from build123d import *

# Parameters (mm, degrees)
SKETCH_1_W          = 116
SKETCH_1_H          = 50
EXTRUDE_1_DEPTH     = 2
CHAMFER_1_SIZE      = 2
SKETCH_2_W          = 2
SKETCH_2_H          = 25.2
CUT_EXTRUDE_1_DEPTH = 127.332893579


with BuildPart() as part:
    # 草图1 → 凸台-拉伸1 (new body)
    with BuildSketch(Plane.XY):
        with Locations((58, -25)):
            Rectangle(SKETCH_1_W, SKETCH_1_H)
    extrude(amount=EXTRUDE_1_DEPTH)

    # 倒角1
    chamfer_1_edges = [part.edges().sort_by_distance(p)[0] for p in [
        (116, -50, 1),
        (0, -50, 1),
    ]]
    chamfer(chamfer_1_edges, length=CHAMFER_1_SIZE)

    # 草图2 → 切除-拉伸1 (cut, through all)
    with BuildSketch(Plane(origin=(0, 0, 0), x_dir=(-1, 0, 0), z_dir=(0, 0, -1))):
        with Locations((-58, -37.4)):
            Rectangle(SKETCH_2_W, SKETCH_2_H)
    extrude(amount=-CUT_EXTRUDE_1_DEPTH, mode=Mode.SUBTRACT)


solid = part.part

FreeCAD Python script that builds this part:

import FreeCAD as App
import Part
import Sketcher

V = App.Vector
Q = App.Units.Quantity


def edges_at(feature, points):
    """Names of the edges that pass closest to the given points."""
    edges = feature.Shape.Edges
    near = lambda p: min(range(len(edges)), key=lambda i: edges[i].distToShape(Part.Vertex(*p))[0])
    return sorted({f"Edge{near(p) + 1}" for p in points})

doc = App.newDocument("Part")
body = doc.addObject("PartDesign::Body", "Body")

sketch1 = body.newObject("Sketcher::SketchObject", "Sketch")
sketch1.AttachmentSupport = (doc.getObject("XY_Plane"), [""])
sketch1.MapMode = "FlatFace"
sketch1.addGeometry([
    Part.LineSegment(V(0, 0, 0), V(0, -50, 0)),
    Part.LineSegment(V(0, -50, 0), V(116, -50, 0)),
    Part.LineSegment(V(116, -50, 0), V(116, 0, 0)),
    Part.LineSegment(V(116, 0, 0), V(0, 0, 0)),
], False)
sketch1.addConstraint([
    Sketcher.Constraint("Coincident", 0, 2, 1, 1),
    Sketcher.Constraint("Coincident", 1, 2, 2, 1),
    Sketcher.Constraint("Coincident", 2, 2, 3, 1),
    Sketcher.Constraint("Coincident", 3, 2, 0, 1),
    Sketcher.Constraint("Vertical", 0),
    Sketcher.Constraint("Horizontal", 1),
    Sketcher.Constraint("Vertical", 2),
    Sketcher.Constraint("Horizontal", 3),
    Sketcher.Constraint("Coincident", 3, 2, -1, 1),
    Sketcher.Constraint("DistanceX", 1, 1, 1, 2, Q("116 mm")),
    Sketcher.Constraint("DistanceY", 0, 2, 0, 1, Q("50 mm")),
])
pad1 = body.newObject("PartDesign::Pad", "Pad")
pad1.Profile = sketch1
pad1.Length = 2
doc.recompute()

chamfer = body.newObject("PartDesign::Chamfer", "Chamfer")
chamfer.Base = (pad1, edges_at(pad1, [(116, -50, 1), (0, -50, 1)]))
chamfer.Size = 2

sketch2 = body.newObject("Sketcher::SketchObject", "Sketch001")
sketch2.AttachmentSupport = (doc.getObject("XY_Plane"), [""])
sketch2.MapMode = "FlatFace"
sketch2.addGeometry([
    Part.LineSegment(V(59, -24.8, 0), V(59, -50, 0)),
    Part.LineSegment(V(59, -50, 0), V(57, -50, 0)),
    Part.LineSegment(V(57, -50, 0), V(57, -24.8, 0)),
    Part.LineSegment(V(57, -24.8, 0), V(59, -24.8, 0)),
], False)
sketch2.addConstraint([
    Sketcher.Constraint("Coincident", 0, 2, 1, 1),
    Sketcher.Constraint("Coincident", 1, 2, 2, 1),
    Sketcher.Constraint("Coincident", 2, 2, 3, 1),
    Sketcher.Constraint("Coincident", 3, 2, 0, 1),
    Sketcher.Constraint("Vertical", 0),
    Sketcher.Constraint("Horizontal", 1),
    Sketcher.Constraint("Vertical", 2),
    Sketcher.Constraint("Horizontal", 3),
    Sketcher.Constraint("DistanceX", 1, 2, 1, 1, Q("2 mm")),
    Sketcher.Constraint("DistanceY", 0, 2, 0, 1, Q("25.2 mm")),
    Sketcher.Constraint("DistanceX", -1, 1, 0, 2, Q("59 mm")),
    Sketcher.Constraint("DistanceY", 0, 2, -1, 1, Q("50 mm")),
])
pocket1 = body.newObject("PartDesign::Pocket", "Pocket")
pocket1.Profile = sketch2
pocket1.Type = "ThroughAll"
pocket1.Reversed = True

doc.recompute()
